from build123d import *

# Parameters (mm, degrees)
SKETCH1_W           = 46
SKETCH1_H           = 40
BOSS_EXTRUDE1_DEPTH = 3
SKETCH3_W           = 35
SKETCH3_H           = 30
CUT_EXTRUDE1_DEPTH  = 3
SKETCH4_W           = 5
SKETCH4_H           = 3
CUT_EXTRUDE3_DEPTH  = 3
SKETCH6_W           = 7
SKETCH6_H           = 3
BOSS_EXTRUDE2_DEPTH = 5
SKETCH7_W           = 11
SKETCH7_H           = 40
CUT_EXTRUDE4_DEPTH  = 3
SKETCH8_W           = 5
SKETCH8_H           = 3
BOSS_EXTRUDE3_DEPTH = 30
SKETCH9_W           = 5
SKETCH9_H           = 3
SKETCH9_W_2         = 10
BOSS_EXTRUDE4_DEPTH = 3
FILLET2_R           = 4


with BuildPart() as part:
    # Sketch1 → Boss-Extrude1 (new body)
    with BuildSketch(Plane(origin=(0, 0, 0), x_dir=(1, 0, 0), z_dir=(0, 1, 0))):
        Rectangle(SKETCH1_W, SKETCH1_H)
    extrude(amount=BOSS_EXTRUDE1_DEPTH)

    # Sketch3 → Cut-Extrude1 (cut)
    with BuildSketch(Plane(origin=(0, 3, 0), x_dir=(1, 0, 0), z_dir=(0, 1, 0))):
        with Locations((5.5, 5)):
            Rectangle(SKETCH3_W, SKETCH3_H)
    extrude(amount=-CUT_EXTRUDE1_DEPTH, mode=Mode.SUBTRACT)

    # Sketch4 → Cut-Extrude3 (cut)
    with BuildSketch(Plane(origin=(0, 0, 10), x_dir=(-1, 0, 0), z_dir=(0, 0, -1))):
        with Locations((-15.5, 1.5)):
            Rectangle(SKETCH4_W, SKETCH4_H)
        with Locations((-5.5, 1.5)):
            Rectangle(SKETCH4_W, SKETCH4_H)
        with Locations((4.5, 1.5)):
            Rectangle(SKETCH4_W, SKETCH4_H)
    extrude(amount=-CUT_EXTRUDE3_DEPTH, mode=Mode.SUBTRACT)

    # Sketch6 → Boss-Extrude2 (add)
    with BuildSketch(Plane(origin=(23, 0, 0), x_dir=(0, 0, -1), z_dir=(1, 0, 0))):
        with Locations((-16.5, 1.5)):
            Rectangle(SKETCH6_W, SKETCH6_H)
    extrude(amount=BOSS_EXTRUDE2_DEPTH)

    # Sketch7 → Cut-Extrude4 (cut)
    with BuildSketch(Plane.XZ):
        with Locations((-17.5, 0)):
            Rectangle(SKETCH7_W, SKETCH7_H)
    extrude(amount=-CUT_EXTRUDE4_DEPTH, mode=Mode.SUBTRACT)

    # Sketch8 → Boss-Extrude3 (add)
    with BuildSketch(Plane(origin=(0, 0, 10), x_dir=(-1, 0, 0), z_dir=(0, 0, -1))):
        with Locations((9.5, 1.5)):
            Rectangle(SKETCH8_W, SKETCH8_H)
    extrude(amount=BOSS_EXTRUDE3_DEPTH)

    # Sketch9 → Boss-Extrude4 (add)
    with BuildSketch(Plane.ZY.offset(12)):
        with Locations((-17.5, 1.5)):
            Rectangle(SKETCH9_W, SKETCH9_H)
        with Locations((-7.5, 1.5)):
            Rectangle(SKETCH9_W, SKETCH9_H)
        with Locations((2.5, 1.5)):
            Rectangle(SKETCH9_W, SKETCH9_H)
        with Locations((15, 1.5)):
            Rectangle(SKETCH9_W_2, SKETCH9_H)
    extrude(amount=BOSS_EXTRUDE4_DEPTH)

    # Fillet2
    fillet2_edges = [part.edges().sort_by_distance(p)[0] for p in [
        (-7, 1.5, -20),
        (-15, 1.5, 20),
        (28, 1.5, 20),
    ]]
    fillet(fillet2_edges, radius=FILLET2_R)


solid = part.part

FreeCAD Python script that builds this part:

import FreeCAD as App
import Part
import Sketcher
Q = App.Units.Quantity


def edges_at(feature, points):
    """Names of the edges that pass closest to the given points."""
    edges = feature.Shape.Edges
    near = lambda p: min(range(len(edges)), key=lambda i: edges[i].distToShape(Part.Vertex(*p))[0])
    return sorted({f"Edge{near(p) + 1}" for p in points})

doc = App.newDocument("Part")
body = doc.addObject("PartDesign::Body", "Body")

sketch1 = doc.addObject("Sketcher::SketchObject", "Sketch")
body.addObject(sketch1)
sketch1.AttachmentSupport = (doc.XZ_Plane, [""])
sketch1.MapMode = "FlatFace"
sketch1.addGeometry([
    Part.LineSegment(App.Vector(-23, -20, 0), App.Vector(-23, 20, 0)),
    Part.LineSegment(App.Vector(-23, 20, 0), App.Vector(23, 20, 0)),
    Part.LineSegment(App.Vector(23, 20, 0), App.Vector(23, -20, 0)),
    Part.LineSegment(App.Vector(23, -20, 0), App.Vector(-23, -20, 0)),
], False)
sketch1.addConstraint([
    Sketcher.Constraint("Coincident", 0, 2, 1, 1),
    Sketcher.Constraint("Coincident", 1, 2, 2, 1),
    Sketcher.Constraint("Coincident", 2, 2, 3, 1),
    Sketcher.Constraint("Coincident", 3, 2, 0, 1),
    Sketcher.Constraint("Vertical", 0),
    Sketcher.Constraint("Horizontal", 1),
    Sketcher.Constraint("Vertical", 2),
    Sketcher.Constraint("Horizontal", 3),
    Sketcher.Constraint("Symmetric", 0, 2, 2, 2, -1, 1),
    Sketcher.Constraint("DistanceX", 1, 1, 1, 2, Q("46 mm")),
    Sketcher.Constraint("DistanceY", 0, 1, 0, 2, Q("40 mm")),
])
pad1 = doc.addObject("PartDesign::Pad", "Pad")
body.addObject(pad1)
pad1.Profile = sketch1
pad1.Length = 3
pad1.Reversed = True

sketch2 = doc.addObject("Sketcher::SketchObject", "Sketch001")
body.addObject(sketch2)
sketch2.AttachmentSupport = (doc.XZ_Plane, [""])
sketch2.MapMode = "FlatFace"
sketch2.AttachmentOffset = App.Placement(App.Vector(0, 0, -3), App.Rotation())
sketch2.addGeometry([
    Part.LineSegment(App.Vector(-12, -20, 0), App.Vector(-12, 10, 0)),
    Part.LineSegment(App.Vector(-12, 10, 0), App.Vector(23, 10, 0)),
    Part.LineSegment(App.Vector(23, 10, 0), App.Vector(23, -20, 0)),
    Part.LineSegment(App.Vector(23, -20, 0), App.Vector(-12, -20, 0)),
], False)
sketch2.addConstraint([
    Sketcher.Constraint("Coincident", 0, 2, 1, 1),
    Sketcher.Constraint("Coincident", 1, 2, 2, 1),
    Sketcher.Constraint("Coincident", 2, 2, 3, 1),
    Sketcher.Constraint("Coincident", 3, 2, 0, 1),
    Sketcher.Constraint("Vertical", 0),
    Sketcher.Constraint("Horizontal", 1),
    Sketcher.Constraint("Vertical", 2),
    Sketcher.Constraint("Horizontal", 3),
    Sketcher.Constraint("DistanceX", 1, 1, 1, 2, Q("35 mm")),
    Sketcher.Constraint("DistanceY", 0, 1, 0, 2, Q("30 mm")),
    Sketcher.Constraint("DistanceX", 0, 2, -1, 1, Q("12 mm")),
    Sketcher.Constraint("DistanceY", -1, 1, 0, 2, Q("10 mm")),
])
pocket1 = doc.addObject("PartDesign::Pocket", "Pocket")
body.addObject(pocket1)
pocket1.Profile = sketch2
pocket1.Length = 3
pocket1.Reversed = True

sketch3 = doc.addObject("Sketcher::SketchObject", "Sketch002")
body.addObject(sketch3)
sketch3.AttachmentSupport = (doc.XY_Plane, [""])
sketch3.MapMode = "FlatFace"
sketch3.AttachmentOffset = App.Placement(App.Vector(0, 0, 10), App.Rotation())
sketch3.addGeometry([
    Part.LineSegment(App.Vector(18, 3, 0), App.Vector(18, 0, 0)),
    Part.LineSegment(App.Vector(18, 0, 0), App.Vector(13, 0, 0)),
    Part.LineSegment(App.Vector(13, 0, 0), App.Vector(13, 3, 0)),
    Part.LineSegment(App.Vector(13, 3, 0), App.Vector(18, 3, 0)),
    Part.LineSegment(App.Vector(8, 3, 0), App.Vector(8, 0, 0)),
    Part.LineSegment(App.Vector(8, 0, 0), App.Vector(3, 0, 0)),
    Part.LineSegment(App.Vector(3, 0, 0), App.Vector(3, 3, 0)),
    Part.LineSegment(App.Vector(3, 3, 0), App.Vector(8, 3, 0)),
    Part.LineSegment(App.Vector(-2, 3, 0), App.Vector(-2, 0, 0)),
    Part.LineSegment(App.Vector(-2, 0, 0), App.Vector(-7, 0, 0)),
    Part.LineSegment(App.Vector(-7, 0, 0), App.Vector(-7, 3, 0)),
    Part.LineSegment(App.Vector(-7, 3, 0), App.Vector(-2, 3, 0)),
], False)
sketch3.addConstraint([
    Sketcher.Constraint("Coincident", 0, 2, 1, 1),
    Sketcher.Constraint("Coincident", 1, 2, 2, 1),
    Sketcher.Constraint("Coincident", 2, 2, 3, 1),
    Sketcher.Constraint("Coincident", 3, 2, 0, 1),
    Sketcher.Constraint("Coincident", 4, 2, 5, 1),
    Sketcher.Constraint("Coincident", 5, 2, 6, 1),
    Sketcher.Constraint("Coincident", 6, 2, 7, 1),
    Sketcher.Constraint("Coincident", 7, 2, 4, 1),
    Sketcher.Constraint("Coincident", 8, 2, 9, 1),
    Sketcher.Constraint("Coincident", 9, 2, 10, 1),
    Sketcher.Constraint("Coincident", 10, 2, 11, 1),
    Sketcher.Constraint("Coincident", 11, 2, 8, 1),
    Sketcher.Constraint("Vertical", 0),
    Sketcher.Constraint("Horizontal", 1),
    Sketcher.Constraint("Vertical", 2),
    Sketcher.Constraint("Horizontal", 3),
    Sketcher.Constraint("Vertical", 4),
    Sketcher.Constraint("Horizontal", 5),
    Sketcher.Constraint("Vertical", 6),
    Sketcher.Constraint("Horizontal", 7),
    Sketcher.Constraint("Vertical", 8),
    Sketcher.Constraint("Horizontal", 9),
    Sketcher.Constraint("Vertical", 10),
    Sketcher.Constraint("Horizontal", 11),
    Sketcher.Constraint("PointOnObject", 0, 2, -1),
    Sketcher.Constraint("PointOnObject", 4, 2, -1),
    Sketcher.Constraint("PointOnObject", 8, 2, -1),
    Sketcher.Constraint("Horizontal", 3, 2, 6, 2),
    Sketcher.Constraint("Horizontal", 7, 2, 10, 2),
    Sketcher.Constraint("Equal", 3, 5),
    Sketcher.Constraint("Equal", 7, 9),
    Sketcher.Constraint("DistanceX", 1, 2, 1, 1, Q("5 mm")),
    Sketcher.Constraint("DistanceY", 0, 2, 0, 1, Q("3 mm")),
    Sketcher.Constraint("DistanceX", -1, 1, 0, 2, Q("18 mm")),
    Sketcher.Constraint("DistanceX", -1, 1, 4, 2, Q("8 mm")),
    Sketcher.Constraint("DistanceX", 8, 2, -1, 1, Q("2 mm")),
])
pocket2 = doc.addObject("PartDesign::Pocket", "Pocket001")
body.addObject(pocket2)
pocket2.Profile = sketch3
pocket2.Length = 3
pocket2.Reversed = True

sketch4 = doc.addObject("Sketcher::SketchObject", "Sketch003")
body.addObject(sketch4)
sketch4.AttachmentSupport = (doc.YZ_Plane, [""])
sketch4.MapMode = "FlatFace"
sketch4.AttachmentOffset = App.Placement(App.Vector(0, 0, 23), App.Rotation())
sketch4.addGeometry([
    Part.LineSegment(App.Vector(3, 20, 0), App.Vector(0, 20, 0)),
    Part.LineSegment(App.Vector(0, 20, 0), App.Vector(0, 13, 0)),
    Part.LineSegment(App.Vector(0, 13, 0), App.Vector(3, 13, 0)),
    Part.LineSegment(App.Vector(3, 13, 0), App.Vector(3, 20, 0)),
], False)
sketch4.addConstraint([
    Sketcher.Constraint("Coincident", 0, 2, 1, 1),
    Sketcher.Constraint("Coincident", 1, 2, 2, 1),
    Sketcher.Constraint("Coincident", 2, 2, 3, 1),
    Sketcher.Constraint("Coincident", 3, 2, 0, 1),
    Sketcher.Constraint("Horizontal", 0),
    Sketcher.Constraint("Vertical", 1),
    Sketcher.Constraint("Horizontal", 2),
    Sketcher.Constraint("Vertical", 3),
    Sketcher.Constraint("PointOnObject", 0, 2, -2),
    Sketcher.Constraint("DistanceX", 0, 2, 0, 1, Q("3 mm")),
    Sketcher.Constraint("DistanceY", 1, 2, 1, 1, Q("7 mm")),
    Sketcher.Constraint("DistanceY", -1, 1, 0, 2, Q("20 mm")),
])
pad2 = doc.addObject("PartDesign::Pad", "Pad001")
body.addObject(pad2)
pad2.Profile = sketch4
pad2.Length = 5

sketch5 = doc.addObject("Sketcher::SketchObject", "Sketch004")
body.addObject(sketch5)
sketch5.AttachmentSupport = (doc.XZ_Plane, [""])
sketch5.MapMode = "FlatFace"
sketch5.addGeometry([
    Part.LineSegment(App.Vector(-23, 20, 0), App.Vector(-23, -20, 0)),
    Part.LineSegment(App.Vector(-23, -20, 0), App.Vector(-12, -20, 0)),
    Part.LineSegment(App.Vector(-12, -20, 0), App.Vector(-12, 20, 0)),
    Part.LineSegment(App.Vector(-12, 20, 0), App.Vector(-23, 20, 0)),
], False)
sketch5.addConstraint([
    Sketcher.Constraint("Coincident", 0, 2, 1, 1),
    Sketcher.Constraint("Coincident", 1, 2, 2, 1),
    Sketcher.Constraint("Coincident", 2, 2, 3, 1),
    Sketcher.Constraint("Coincident", 3, 2, 0, 1),
    Sketcher.Constraint("Vertical", 0),
    Sketcher.Constraint("Horizontal", 1),
    Sketcher.Constraint("Vertical", 2),
    Sketcher.Constraint("Horizontal", 3),
    Sketcher.Constraint("DistanceX", 1, 1, 1, 2, Q("11 mm")),
    Sketcher.Constraint("DistanceY", 0, 2, 0, 1, Q("40 mm")),
    Sketcher.Constraint("DistanceX", 0, 2, -1, 1, Q("23 mm")),
    Sketcher.Constraint("DistanceY", 0, 2, -1, 1, Q("20 mm")),
])
pocket3 = doc.addObject("PartDesign::Pocket", "Pocket002")
body.addObject(pocket3)
pocket3.Profile = sketch5
pocket3.Length = 3

sketch6 = doc.addObject("Sketcher::SketchObject", "Sketch005")
body.addObject(sketch6)
sketch6.AttachmentSupport = (doc.XY_Plane, [""])
sketch6.MapMode = "FlatFace"
sketch6.AttachmentOffset = App.Placement(App.Vector(0, 0, 10), App.Rotation())
sketch6.addGeometry([
    Part.LineSegment(App.Vector(-7, 3, 0), App.Vector(-7, 0, 0)),
    Part.LineSegment(App.Vector(-7, 0, 0), App.Vector(-12, 0, 0)),
    Part.LineSegment(App.Vector(-12, 0, 0), App.Vector(-12, 3, 0)),
    Part.LineSegment(App.Vector(-12, 3, 0), App.Vector(-7, 3, 0)),
], False)
sketch6.addConstraint([
    Sketcher.Constraint("Coincident", 0, 2, 1, 1),
    Sketcher.Constraint("Coincident", 1, 2, 2, 1),
    Sketcher.Constraint("Coincident", 2, 2, 3, 1),
    Sketcher.Constraint("Coincident", 3, 2, 0, 1),
    Sketcher.Constraint("Vertical", 0),
    Sketcher.Constraint("Horizontal", 1),
    Sketcher.Constraint("Vertical", 2),
    Sketcher.Constraint("Horizontal", 3),
    Sketcher.Constraint("PointOnObject", 0, 2, -1),
    Sketcher.Constraint("DistanceX", 1, 2, 1, 1, Q("5 mm")),
    Sketcher.Constraint("DistanceY", 0, 2, 0, 1, Q("3 mm")),
    Sketcher.Constraint("DistanceX", 0, 2, -1, 1, Q("7 mm")),
])
pad3 = doc.addObject("PartDesign::Pad", "Pad002")
body.addObject(pad3)
pad3.Profile = sketch6
pad3.Length = 30
pad3.Reversed = True

sketch7 = doc.addObject("Sketcher::SketchObject", "Sketch006")
body.addObject(sketch7)
sketch7.AttachmentSupport = (doc.YZ_Plane, [""])
sketch7.MapMode = "FlatFace"
sketch7.AttachmentOffset = App.Placement(App.Vector(0, 0, -12), App.Rotation())
sketch7.addGeometry([
    Part.LineSegment(App.Vector(3, -20, 0), App.Vector(0, -20, 0)),
    Part.LineSegment(App.Vector(0, -20, 0), App.Vector(0, -15, 0)),
    Part.LineSegment(App.Vector(0, -15, 0), App.Vector(3, -15, 0)),
    Part.LineSegment(App.Vector(3, -15, 0), App.Vector(3, -20, 0)),
    Part.LineSegment(App.Vector(3, -10, 0), App.Vector(0, -10, 0)),
    Part.LineSegment(App.Vector(0, -10, 0), App.Vector(0, -5, 0)),
    Part.LineSegment(App.Vector(0, -5, 0), App.Vector(3, -5, 0)),
    Part.LineSegment(App.Vector(3, -5, 0), App.Vector(3, -10, 0)),
    Part.LineSegment(App.Vector(3, 0, 0), App.Vector(0, 0, 0)),
    Part.LineSegment(App.Vector(0, 0, 0), App.Vector(0, 5, 0)),
    Part.LineSegment(App.Vector(0, 5, 0), App.Vector(3, 5, 0)),
    Part.LineSegment(App.Vector(3, 5, 0), App.Vector(3, 0, 0)),
    Part.LineSegment(App.Vector(3, 10, 0), App.Vector(0, 10, 0)),
    Part.LineSegment(App.Vector(0, 10, 0), App.Vector(0, 20, 0)),
    Part.LineSegment(App.Vector(0, 20, 0), App.Vector(3, 20, 0)),
    Part.LineSegment(App.Vector(3, 20, 0), App.Vector(3, 10, 0)),
], False)
sketch7.addConstraint([
    Sketcher.Constraint("Coincident", 0, 2, 1, 1),
    Sketcher.Constraint("Coincident", 1, 2, 2, 1),
    Sketcher.Constraint("Coincident", 2, 2, 3, 1),
    Sketcher.Constraint("Coincident", 3, 2, 0, 1),
    Sketcher.Constraint("Coincident", 4, 2, 5, 1),
    Sketcher.Constraint("Coincident", 5, 2, 6, 1),
    Sketcher.Constraint("Coincident", 6, 2, 7, 1),
    Sketcher.Constraint("Coincident", 7, 2, 4, 1),
    Sketcher.Constraint("Coincident", 8, 2, 9, 1),
    Sketcher.Constraint("Coincident", 9, 2, 10, 1),
    Sketcher.Constraint("Coincident", 10, 2, 11, 1),
    Sketcher.Constraint("Coincident", 11, 2, 8, 1),
    Sketcher.Constraint("Coincident", 12, 2, 13, 1),
    Sketcher.Constraint("Coincident", 13, 2, 14, 1),
    Sketcher.Constraint("Coincident", 14, 2, 15, 1),
    Sketcher.Constraint("Coincident", 15, 2, 12, 1),
    Sketcher.Constraint("Horizontal", 0),
    Sketcher.Constraint("Vertical", 1),
    Sketcher.Constraint("Horizontal", 2),
    Sketcher.Constraint("Vertical", 3),
    Sketcher.Constraint("Horizontal", 4),
    Sketcher.Constraint("Vertical", 5),
    Sketcher.Constraint("Horizontal", 6),
    Sketcher.Constraint("Vertical", 7),
    Sketcher.Constraint("Horizontal", 8),
    Sketcher.Constraint("Vertical", 9),
    Sketcher.Constraint("Horizontal", 10),
    Sketcher.Constraint("Vertical", 11),
    Sketcher.Constraint("Horizontal", 12),
    Sketcher.Constraint("Vertical", 13),
    Sketcher.Constraint("Horizontal", 14),
    Sketcher.Constraint("Vertical", 15),
    Sketcher.Constraint("Coincident", 8, 2, -1, 1),
    Sketcher.Constraint("Symmetric", 5, 2, 9, 2, -1, 1),
    Sketcher.Constraint("Symmetric", 4, 2, 12, 2, -1, 1),
    Sketcher.Constraint("Symmetric", 0, 2, 13, 2, -1, 1),
    Sketcher.Constraint("Vertical", 3, 2, 6, 2),
    Sketcher.Constraint("Vertical", 7, 2, 10, 2),
    Sketcher.Constraint("Vertical", 11, 2, 14, 2),
    Sketcher.Constraint("Equal", 3, 5),
    Sketcher.Constraint("Equal", 7, 9),
    Sketcher.Constraint("DistanceX", 0, 2, 0, 1, Q("3 mm")),
    Sketcher.Constraint("DistanceY", 1, 1, 1, 2, Q("5 mm")),
    Sketcher.Constraint("DistanceY", 13, 1, 13, 2, Q("10 mm")),
])
pad4 = doc.addObject("PartDesign::Pad", "Pad003")
body.addObject(pad4)
pad4.Profile = sketch7
pad4.Length = 3
pad4.Reversed = True
doc.recompute()

fillet = doc.addObject("PartDesign::Fillet", "Fillet")
body.addObject(fillet)
fillet.Base = (pad4, edges_at(pad4, [(-7, 1.5, -20), (-15, 1.5, 20), (28, 1.5, 20)]))
fillet.Radius = 4

doc.recompute()
